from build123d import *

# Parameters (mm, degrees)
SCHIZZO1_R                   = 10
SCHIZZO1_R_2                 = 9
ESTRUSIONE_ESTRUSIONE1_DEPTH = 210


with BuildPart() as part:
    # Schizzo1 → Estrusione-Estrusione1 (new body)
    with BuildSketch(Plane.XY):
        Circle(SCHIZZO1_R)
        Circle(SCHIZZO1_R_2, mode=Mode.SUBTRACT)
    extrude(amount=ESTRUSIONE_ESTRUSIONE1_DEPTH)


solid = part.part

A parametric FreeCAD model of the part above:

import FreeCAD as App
import Part
import Sketcher

V = App.Vector

doc = App.newDocument("Part")
body = doc.addObject("PartDesign::Body", "Body")

sketch1 = body.newObject("Sketcher::SketchObject", "Sketch")
sketch1.AttachmentSupport = (doc.getObject("XY_Plane"), [""])
sketch1.MapMode = "FlatFace"
sketch1.addGeometry(Part.Circle(V(0, 0, 0), V(0, 0, 1), 10), False)
sketch1.addGeometry(Part.Circle(V(0, 0, 0), V(0, 0, 1), 9), False)
sketch1.addConstraint(Sketcher.Constraint("Coincident", 0, 3, -1, 1))
sketch1.addConstraint(Sketcher.Constraint("Coincident", 1, 3, -1, 1))
sketch1.addConstraint(Sketcher.Constraint("Diameter", 0, 20.0))
sketch1.addConstraint(Sketcher.Constraint("Diameter", 1, 18.0))
pad1 = body.newObject("PartDesign::Pad", "Pad")
pad1.Profile = sketch1
pad1.Length = 210

doc.recompute()
